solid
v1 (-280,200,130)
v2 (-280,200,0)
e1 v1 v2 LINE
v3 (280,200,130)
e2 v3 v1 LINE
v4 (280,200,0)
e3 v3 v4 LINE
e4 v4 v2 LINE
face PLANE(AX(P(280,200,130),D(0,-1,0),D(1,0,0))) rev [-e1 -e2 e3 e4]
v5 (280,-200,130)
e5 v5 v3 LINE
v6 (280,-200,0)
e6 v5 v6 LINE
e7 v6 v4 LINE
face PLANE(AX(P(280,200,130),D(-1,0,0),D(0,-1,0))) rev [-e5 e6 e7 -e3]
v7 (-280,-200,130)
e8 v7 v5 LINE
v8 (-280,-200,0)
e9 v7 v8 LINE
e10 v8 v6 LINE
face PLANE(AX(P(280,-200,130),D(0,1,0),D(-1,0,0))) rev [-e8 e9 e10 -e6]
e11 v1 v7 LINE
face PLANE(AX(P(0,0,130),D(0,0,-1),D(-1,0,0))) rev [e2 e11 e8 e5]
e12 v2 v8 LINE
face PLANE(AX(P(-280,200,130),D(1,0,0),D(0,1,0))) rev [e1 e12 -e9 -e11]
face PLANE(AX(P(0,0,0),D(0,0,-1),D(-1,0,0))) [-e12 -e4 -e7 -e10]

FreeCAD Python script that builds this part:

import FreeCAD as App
import Part
import Sketcher
from FreeCAD import Vector


def add_polygon(sketch, points):
    """Adds a closed chain of lines whose ends are joined by coincident constraints."""
    first, n = sketch.GeometryCount, len(points)
    for a, b in zip(points, points[1:] + points[:1]):
        sketch.addGeometry(Part.LineSegment(App.Vector(*a, 0), App.Vector(*b, 0)), False)
    for i in range(n):
        sketch.addConstraint(Sketcher.Constraint("Coincident", first + i, 2, first + (i + 1) % n, 1))

doc = App.newDocument("Part")
params = doc.addObject("Spreadsheet::Sheet", "Params")
for row, (alias, value) in enumerate([
    ("sketch1_width", "560 mm"),
    ("sketch1_height", "400 mm"),
    ("pad1_length", "130 mm"),
], start=1):
    params.set(f"A{row}", alias)
    params.set(f"B{row}", "=" + value)
    params.setAlias(f"B{row}", alias)

body = doc.addObject("PartDesign::Body", "Body")

# Sketch on XY plane
sketch1 = body.newObject("Sketcher::SketchObject", "Sketch")
sketch1.AttachmentSupport = (doc.getObject("XY_Plane"), [""])
sketch1.MapMode = "FlatFace"
add_polygon(sketch1, [(-280, 200), (-280, -200), (280, -200), (280, 200)])  # lines 0-3
sketch1.addConstraint(Sketcher.Constraint("Vertical", 0))
sketch1.addConstraint(Sketcher.Constraint("Horizontal", 1))
sketch1.addConstraint(Sketcher.Constraint("Vertical", 2))
sketch1.addConstraint(Sketcher.Constraint("Horizontal", 3))
sketch1.addConstraint(Sketcher.Constraint("Symmetric", 0, 2, 2, 2, -1, 1))
sketch1.addConstraint(Sketcher.Constraint("DistanceX", 1, 1, 1, 2, 560.0))
sketch1.addConstraint(Sketcher.Constraint("DistanceY", 0, 2, 0, 1, 400.0))
sketch1.setExpression("Constraints[9]", "Params.sketch1_width")
sketch1.setExpression("Constraints[10]", "Params.sketch1_height")
pad1 = body.newObject("PartDesign::Pad", "Pad")
pad1.Profile = sketch1
pad1.setExpression("Length", "Params.pad1_length")

doc.recompute()
